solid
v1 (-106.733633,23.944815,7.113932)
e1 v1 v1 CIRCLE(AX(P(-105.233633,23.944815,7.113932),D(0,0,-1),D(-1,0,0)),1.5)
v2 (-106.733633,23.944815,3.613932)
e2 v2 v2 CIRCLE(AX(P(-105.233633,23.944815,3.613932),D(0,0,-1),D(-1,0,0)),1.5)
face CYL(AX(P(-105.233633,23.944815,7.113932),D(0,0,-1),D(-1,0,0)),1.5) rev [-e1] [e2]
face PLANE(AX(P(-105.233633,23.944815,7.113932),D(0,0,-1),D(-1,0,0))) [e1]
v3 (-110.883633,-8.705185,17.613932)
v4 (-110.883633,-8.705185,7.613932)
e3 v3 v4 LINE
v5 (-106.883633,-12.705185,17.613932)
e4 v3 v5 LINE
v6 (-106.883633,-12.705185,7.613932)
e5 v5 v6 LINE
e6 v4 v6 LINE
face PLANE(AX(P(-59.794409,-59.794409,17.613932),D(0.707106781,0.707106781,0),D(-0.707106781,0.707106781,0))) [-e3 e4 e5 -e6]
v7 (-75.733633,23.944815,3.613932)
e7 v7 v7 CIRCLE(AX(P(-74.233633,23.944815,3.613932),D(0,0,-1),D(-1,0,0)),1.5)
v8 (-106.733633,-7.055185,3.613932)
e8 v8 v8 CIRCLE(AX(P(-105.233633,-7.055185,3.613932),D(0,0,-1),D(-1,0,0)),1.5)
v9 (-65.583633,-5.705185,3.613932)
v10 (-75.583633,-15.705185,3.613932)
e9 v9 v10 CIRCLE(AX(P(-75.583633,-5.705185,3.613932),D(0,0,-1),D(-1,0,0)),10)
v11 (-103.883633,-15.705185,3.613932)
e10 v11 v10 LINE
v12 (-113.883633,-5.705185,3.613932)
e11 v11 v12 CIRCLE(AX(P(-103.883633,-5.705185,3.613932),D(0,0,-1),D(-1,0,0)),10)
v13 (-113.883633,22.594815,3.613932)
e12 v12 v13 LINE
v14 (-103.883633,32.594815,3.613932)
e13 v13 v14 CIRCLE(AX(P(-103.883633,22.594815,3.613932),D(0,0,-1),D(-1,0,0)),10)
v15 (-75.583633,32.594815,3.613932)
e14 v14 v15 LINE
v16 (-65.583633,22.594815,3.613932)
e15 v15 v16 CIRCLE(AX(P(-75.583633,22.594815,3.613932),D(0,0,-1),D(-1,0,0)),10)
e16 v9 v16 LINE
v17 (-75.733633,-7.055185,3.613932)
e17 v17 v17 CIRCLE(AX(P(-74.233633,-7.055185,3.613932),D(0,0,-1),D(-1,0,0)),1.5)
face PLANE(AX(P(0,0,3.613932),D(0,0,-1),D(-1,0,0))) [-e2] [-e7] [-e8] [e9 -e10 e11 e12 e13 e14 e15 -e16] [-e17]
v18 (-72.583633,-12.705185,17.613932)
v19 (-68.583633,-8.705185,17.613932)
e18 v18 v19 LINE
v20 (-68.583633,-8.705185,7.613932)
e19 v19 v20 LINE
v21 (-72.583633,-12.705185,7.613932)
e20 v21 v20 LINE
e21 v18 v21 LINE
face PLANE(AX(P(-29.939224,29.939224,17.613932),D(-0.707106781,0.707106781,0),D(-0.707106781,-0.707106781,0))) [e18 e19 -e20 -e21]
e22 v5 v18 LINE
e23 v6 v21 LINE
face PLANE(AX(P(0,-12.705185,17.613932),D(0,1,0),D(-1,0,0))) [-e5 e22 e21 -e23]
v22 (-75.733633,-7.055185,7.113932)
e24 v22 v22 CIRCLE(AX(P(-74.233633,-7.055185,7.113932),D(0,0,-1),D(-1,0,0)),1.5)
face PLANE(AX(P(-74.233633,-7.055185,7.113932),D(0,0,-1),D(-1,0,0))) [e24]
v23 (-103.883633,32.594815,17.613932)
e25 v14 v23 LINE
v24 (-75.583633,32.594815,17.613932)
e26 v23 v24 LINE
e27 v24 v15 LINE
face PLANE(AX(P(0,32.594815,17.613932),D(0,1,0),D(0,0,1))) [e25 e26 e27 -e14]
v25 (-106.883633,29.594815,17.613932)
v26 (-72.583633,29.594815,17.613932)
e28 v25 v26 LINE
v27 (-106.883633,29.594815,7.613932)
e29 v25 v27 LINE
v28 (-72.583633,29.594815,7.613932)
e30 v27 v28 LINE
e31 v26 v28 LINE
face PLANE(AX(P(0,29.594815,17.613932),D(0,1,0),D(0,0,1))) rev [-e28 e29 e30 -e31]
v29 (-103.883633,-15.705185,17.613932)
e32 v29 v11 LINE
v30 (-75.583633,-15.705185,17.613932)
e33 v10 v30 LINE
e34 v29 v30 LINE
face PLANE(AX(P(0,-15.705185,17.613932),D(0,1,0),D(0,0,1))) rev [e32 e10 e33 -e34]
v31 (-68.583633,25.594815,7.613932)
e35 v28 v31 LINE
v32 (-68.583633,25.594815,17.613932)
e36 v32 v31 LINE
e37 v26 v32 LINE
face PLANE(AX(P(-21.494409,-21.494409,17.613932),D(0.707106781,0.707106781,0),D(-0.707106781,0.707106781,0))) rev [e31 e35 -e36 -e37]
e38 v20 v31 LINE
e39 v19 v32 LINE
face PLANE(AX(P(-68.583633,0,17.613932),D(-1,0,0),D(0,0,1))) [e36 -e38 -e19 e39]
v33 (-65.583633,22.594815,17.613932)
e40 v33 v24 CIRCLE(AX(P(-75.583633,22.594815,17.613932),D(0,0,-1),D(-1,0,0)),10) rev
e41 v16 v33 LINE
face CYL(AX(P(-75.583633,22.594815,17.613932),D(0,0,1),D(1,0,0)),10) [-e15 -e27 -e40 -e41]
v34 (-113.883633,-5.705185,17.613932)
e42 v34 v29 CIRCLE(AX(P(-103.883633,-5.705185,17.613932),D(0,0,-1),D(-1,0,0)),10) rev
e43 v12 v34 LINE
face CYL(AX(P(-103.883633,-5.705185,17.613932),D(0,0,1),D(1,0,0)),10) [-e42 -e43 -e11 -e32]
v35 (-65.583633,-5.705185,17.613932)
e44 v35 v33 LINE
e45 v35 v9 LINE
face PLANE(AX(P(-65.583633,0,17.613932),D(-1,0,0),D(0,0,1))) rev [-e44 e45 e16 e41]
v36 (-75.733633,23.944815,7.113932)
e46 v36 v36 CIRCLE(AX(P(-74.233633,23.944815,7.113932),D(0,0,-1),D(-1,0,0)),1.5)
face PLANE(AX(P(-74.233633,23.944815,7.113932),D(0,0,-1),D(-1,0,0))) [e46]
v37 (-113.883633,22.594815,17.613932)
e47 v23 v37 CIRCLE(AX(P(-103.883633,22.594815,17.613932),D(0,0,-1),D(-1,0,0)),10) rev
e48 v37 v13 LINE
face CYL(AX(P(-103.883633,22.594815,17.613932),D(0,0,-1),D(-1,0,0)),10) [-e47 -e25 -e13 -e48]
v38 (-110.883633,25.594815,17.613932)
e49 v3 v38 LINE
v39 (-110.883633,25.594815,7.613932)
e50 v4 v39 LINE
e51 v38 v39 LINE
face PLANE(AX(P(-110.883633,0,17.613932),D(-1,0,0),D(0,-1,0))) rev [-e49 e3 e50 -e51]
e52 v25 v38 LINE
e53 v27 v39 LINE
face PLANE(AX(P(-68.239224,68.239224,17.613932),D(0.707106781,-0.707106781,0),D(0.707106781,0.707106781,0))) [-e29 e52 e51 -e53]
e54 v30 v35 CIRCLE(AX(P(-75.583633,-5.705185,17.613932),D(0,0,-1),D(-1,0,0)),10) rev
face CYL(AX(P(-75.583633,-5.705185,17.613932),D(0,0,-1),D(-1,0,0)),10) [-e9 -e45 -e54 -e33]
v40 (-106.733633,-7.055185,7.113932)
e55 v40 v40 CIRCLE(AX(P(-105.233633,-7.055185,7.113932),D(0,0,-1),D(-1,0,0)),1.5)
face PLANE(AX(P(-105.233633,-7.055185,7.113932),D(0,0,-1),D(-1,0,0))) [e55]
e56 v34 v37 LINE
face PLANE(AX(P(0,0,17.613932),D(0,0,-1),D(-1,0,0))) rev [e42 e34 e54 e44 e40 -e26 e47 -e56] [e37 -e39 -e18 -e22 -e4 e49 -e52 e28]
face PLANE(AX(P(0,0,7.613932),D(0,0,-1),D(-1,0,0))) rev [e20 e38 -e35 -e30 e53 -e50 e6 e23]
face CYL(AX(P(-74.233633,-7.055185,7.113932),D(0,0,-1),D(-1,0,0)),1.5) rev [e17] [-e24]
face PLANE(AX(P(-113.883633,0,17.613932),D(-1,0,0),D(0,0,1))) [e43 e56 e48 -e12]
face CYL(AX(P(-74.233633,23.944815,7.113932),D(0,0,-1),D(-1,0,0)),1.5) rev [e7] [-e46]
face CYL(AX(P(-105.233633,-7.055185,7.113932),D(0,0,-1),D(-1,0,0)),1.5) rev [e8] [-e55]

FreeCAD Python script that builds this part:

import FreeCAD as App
import Part
import Sketcher

V = App.Vector
Q = App.Units.Quantity


def edges_at(feature, points):
    """Names of the edges that pass closest to the given points."""
    edges = feature.Shape.Edges
    near = lambda p: min(range(len(edges)), key=lambda i: edges[i].distToShape(Part.Vertex(*p))[0])
    return sorted({f"Edge{near(p) + 1}" for p in points})


def add_polygon(sketch, points):
    """Adds a closed chain of lines whose ends are joined by coincident constraints."""
    first, n = sketch.GeometryCount, len(points)
    for a, b in zip(points, points[1:] + points[:1]):
        sketch.addGeometry(Part.LineSegment(App.Vector(*a, 0), App.Vector(*b, 0)), False)
    for i in range(n):
        sketch.addConstraint(Sketcher.Constraint("Coincident", first + i, 2, first + (i + 1) % n, 1))

doc = App.newDocument("Part")
body = doc.addObject("PartDesign::Body", "Body")

# Sketch on XY plane
sketch1 = body.newObject("Sketcher::SketchObject", "Sketch")
sketch1.AttachmentSupport = (doc.getObject("XY_Plane"), [""])
sketch1.MapMode = "FlatFace"
sketch1.AttachmentOffset = App.Placement(V(0, 0, 7.613932), App.Rotation())
add_polygon(sketch1, [(-66, 33), (-66, -16), (-114, -16), (-114, 33)])  # lines 0-3
add_polygon(sketch1, [(-69, 26), (-73, 30), (-107, 30), (-111, 26), (-111, -9), (-107, -13), (-73, -13), (-69, -9)])  # lines 4-11
sketch1.addConstraint([
    Sketcher.Constraint("Vertical", 0),
    Sketcher.Constraint("Horizontal", 1),
    Sketcher.Constraint("Vertical", 2),
    Sketcher.Constraint("Horizontal", 3),
    Sketcher.Constraint("Horizontal", 5),
    Sketcher.Constraint("Vertical", 7),
    Sketcher.Constraint("Horizontal", 9),
    Sketcher.Constraint("Vertical", 11),
    Sketcher.Constraint("Perpendicular", 4, 6),
    Sketcher.Constraint("Perpendicular", 6, 8),
    Sketcher.Constraint("Perpendicular", 8, 10),
    Sketcher.Constraint("Horizontal", 7, 2, 10, 2),
    Sketcher.Constraint("Horizontal", 6, 2, 11, 2),
    Sketcher.Constraint("Vertical", 5, 2, 8, 2),
    Sketcher.Constraint("Vertical", 4, 2, 9, 2),
    Sketcher.Constraint("Equal", 3, 0),
    Sketcher.Constraint("Equal", 9, 7),
    Sketcher.Constraint("DistanceX", 1, 2, 1, 1, Q("48.3 mm")),
    Sketcher.Constraint("DistanceX", 5, 2, 5, 1, Q("34.3 mm")),
    Sketcher.Constraint("DistanceX", 4, 2, 3, 2, Q("7 mm")),
    Sketcher.Constraint("DistanceY", 4, 2, 3, 2, Q("3 mm")),
    Sketcher.Constraint("DistanceX", 6, 2, 5, 2, Q("4 mm")),
    Sketcher.Constraint("DistanceX", 0, 2, -1, 1, Q("65.583633 mm")),
    Sketcher.Constraint("DistanceY", 0, 2, -1, 1, Q("15.705185 mm")),
])
pad1 = body.newObject("PartDesign::Pad", "Pad")
pad1.Profile = sketch1
pad1.Length = 10

# Sketch on XY plane
sketch2 = body.newObject("Sketcher::SketchObject", "Sketch001")
sketch2.AttachmentSupport = (doc.getObject("XY_Plane"), [""])
sketch2.MapMode = "FlatFace"
sketch2.AttachmentOffset = App.Placement(V(0, 0, 7.613932), App.Rotation())
add_polygon(sketch2, [(-66, 33), (-66, -16), (-114, -16), (-114, 33)])  # lines 0-3
sketch2.addConstraint([
    Sketcher.Constraint("Vertical", 0),
    Sketcher.Constraint("Horizontal", 1),
    Sketcher.Constraint("Vertical", 2),
    Sketcher.Constraint("Horizontal", 3),
    Sketcher.Constraint("Equal", 3, 0),
    Sketcher.Constraint("DistanceX", 1, 2, 1, 1, Q("48.3 mm")),
    Sketcher.Constraint("DistanceX", 0, 2, -1, 1, Q("65.583633 mm")),
    Sketcher.Constraint("DistanceY", 0, 2, -1, 1, Q("15.705185 mm")),
])
pad2 = body.newObject("PartDesign::Pad", "Pad001")
pad2.Profile = sketch2
pad2.Length = 4
pad2.Reversed = True

# Sketch on XY plane
sketch3 = body.newObject("Sketcher::SketchObject", "Sketch002")
sketch3.AttachmentSupport = (doc.getObject("XY_Plane"), [""])
sketch3.MapMode = "FlatFace"
sketch3.AttachmentOffset = App.Placement(V(0, 0, 3.613932), App.Rotation())
sketch3.addGeometry([
    Part.Circle(V(-105.2, 23.9, 0), V(0, 0, 1), 1.5),
    Part.Circle(V(-105.2, -7.1, 0), V(0, 0, 1), 1.5),
    Part.Circle(V(-74.2, -7.1, 0), V(0, 0, 1), 1.5),
    Part.Circle(V(-74.2, 23.9, 0), V(0, 0, 1), 1.5),
], False)
sketch3.addConstraint([
    Sketcher.Constraint("Equal", 0, 1),
    Sketcher.Constraint("Equal", 1, 2),
    Sketcher.Constraint("Equal", 2, 3),
    Sketcher.Constraint("Horizontal", 1, 3, 2, 3),
    Sketcher.Constraint("Horizontal", 0, 3, 3, 3),
    Sketcher.Constraint("Vertical", 0, 3, 1, 3),
    Sketcher.Constraint("Vertical", 2, 3, 3, 3),
    Sketcher.Constraint("Diameter", 0, Q("3 mm")),
    Sketcher.Constraint("DistanceY", 1, 3, 0, 3, Q("31 mm")),
    Sketcher.Constraint("DistanceX", 1, 3, 2, 3, Q("31 mm")),
    Sketcher.Constraint("DistanceX", 0, 3, -1, 1, Q("105.233633 mm")),
    Sketcher.Constraint("DistanceY", -1, 1, 0, 3, Q("23.944815 mm")),
])
pocket1 = body.newObject("PartDesign::Pocket", "Pocket")
pocket1.Profile = sketch3
pocket1.Length = 3.5
pocket1.Reversed = True
doc.recompute()

fillet = body.newObject("PartDesign::Fillet", "Fillet")
fillet.Base = (pocket1, edges_at(pocket1, [
    (-65.584, 32.595, 10.614),
    (-113.884, 32.595, 10.614),
    (-113.884, -15.705, 10.614),
    (-65.584, -15.705, 10.614),
]))
fillet.Radius = 10

doc.recompute()
